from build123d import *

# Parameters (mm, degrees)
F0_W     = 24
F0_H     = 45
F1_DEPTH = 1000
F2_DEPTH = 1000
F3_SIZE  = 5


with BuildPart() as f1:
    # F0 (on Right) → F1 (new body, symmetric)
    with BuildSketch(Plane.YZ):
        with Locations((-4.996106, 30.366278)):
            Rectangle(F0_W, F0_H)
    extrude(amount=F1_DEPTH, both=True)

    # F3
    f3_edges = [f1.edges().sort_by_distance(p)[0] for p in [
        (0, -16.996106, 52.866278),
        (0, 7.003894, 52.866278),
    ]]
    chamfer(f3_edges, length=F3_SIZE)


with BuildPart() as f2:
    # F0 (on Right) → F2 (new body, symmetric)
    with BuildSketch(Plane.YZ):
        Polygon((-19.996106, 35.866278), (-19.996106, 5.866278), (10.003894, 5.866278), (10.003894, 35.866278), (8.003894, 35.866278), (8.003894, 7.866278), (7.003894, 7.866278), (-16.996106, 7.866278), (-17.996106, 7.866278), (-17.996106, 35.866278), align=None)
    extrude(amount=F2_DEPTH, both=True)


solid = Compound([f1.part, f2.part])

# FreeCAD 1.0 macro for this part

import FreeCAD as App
import Part
import Sketcher

V = App.Vector


def edges_at(feature, points):
    """Names of the edges that pass closest to the given points."""
    edges = feature.Shape.Edges
    near = lambda p: min(range(len(edges)), key=lambda i: edges[i].distToShape(Part.Vertex(*p))[0])
    return sorted({f"Edge{near(p) + 1}" for p in points})

doc = App.newDocument("Part")
body = doc.addObject("PartDesign::Body", "Body")

sketch1 = body.newObject("Sketcher::SketchObject", "Sketch")
sketch1.AttachmentSupport = (doc.getObject("YZ_Plane"), [""])
sketch1.MapMode = "FlatFace"
sketch1.addGeometry(Part.LineSegment(V(-16.996106, 52.866278, 0), V(-16.996106, 7.866278, 0)), False)
sketch1.addGeometry(Part.LineSegment(V(-16.996106, 7.866278, 0), V(7.003894, 7.866278, 0)), False)
sketch1.addGeometry(Part.LineSegment(V(7.003894, 7.866278, 0), V(7.003894, 52.866278, 0)), False)
sketch1.addGeometry(Part.LineSegment(V(7.003894, 52.866278, 0), V(-16.996106, 52.866278, 0)), False)
sketch1.addConstraint(Sketcher.Constraint("Coincident", 0, 2, 1, 1))
sketch1.addConstraint(Sketcher.Constraint("Coincident", 1, 2, 2, 1))
sketch1.addConstraint(Sketcher.Constraint("Coincident", 2, 2, 3, 1))
sketch1.addConstraint(Sketcher.Constraint("Coincident", 3, 2, 0, 1))
sketch1.addConstraint(Sketcher.Constraint("Vertical", 0))
sketch1.addConstraint(Sketcher.Constraint("Horizontal", 1))
sketch1.addConstraint(Sketcher.Constraint("Vertical", 2))
sketch1.addConstraint(Sketcher.Constraint("Horizontal", 3))
sketch1.addConstraint(Sketcher.Constraint("DistanceX", 1, 1, 1, 2, 24.0))
sketch1.addConstraint(Sketcher.Constraint("DistanceY", 0, 2, 0, 1, 45.0))
sketch1.addConstraint(Sketcher.Constraint("DistanceY", -1, 1, 0, 2, 7.866278))
sketch1.addConstraint(Sketcher.Constraint("DistanceX", 0, 2, -1, 1, 16.996106))
pad1 = body.newObject("PartDesign::Pad", "Pad")
pad1.Profile = sketch1
pad1.Length = 2000
pad1.Midplane = True
doc.recompute()

chamfer = body.newObject("PartDesign::Chamfer", "Chamfer")
chamfer.Base = (pad1, edges_at(pad1, [(0, -16.996, 52.866), (0, 7.004, 52.866)]))
chamfer.Size = 5
body2 = doc.addObject("PartDesign::Body", "Body001")

sketch2 = body2.newObject("Sketcher::SketchObject", "Sketch001")
sketch2.AttachmentSupport = (doc.getObject("YZ_Plane001"), [""])
sketch2.MapMode = "FlatFace"
sketch2.addGeometry(Part.LineSegment(V(-19.996106, 35.866278, 0), V(-19.996106, 5.866278, 0)), False)
sketch2.addGeometry(Part.LineSegment(V(-19.996106, 5.866278, 0), V(10.003894, 5.866278, 0)), False)
sketch2.addGeometry(Part.LineSegment(V(10.003894, 5.866278, 0), V(10.003894, 35.866278, 0)), False)
sketch2.addGeometry(Part.LineSegment(V(10.003894, 35.866278, 0), V(8.003894, 35.866278, 0)), False)
sketch2.addGeometry(Part.LineSegment(V(8.003894, 35.866278, 0), V(8.003894, 7.866278, 0)), False)
sketch2.addGeometry(Part.LineSegment(V(8.003894, 7.866278, 0), V(-17.996106, 7.866278, 0)), False)
sketch2.addGeometry(Part.LineSegment(V(-17.996106, 7.866278, 0), V(-17.996106, 35.866278, 0)), False)
sketch2.addGeometry(Part.LineSegment(V(-17.996106, 35.866278, 0), V(-19.996106, 35.866278, 0)), False)
sketch2.addConstraint(Sketcher.Constraint("Coincident", 0, 2, 1, 1))
sketch2.addConstraint(Sketcher.Constraint("Coincident", 1, 2, 2, 1))
sketch2.addConstraint(Sketcher.Constraint("Coincident", 2, 2, 3, 1))
sketch2.addConstraint(Sketcher.Constraint("Coincident", 3, 2, 4, 1))
sketch2.addConstraint(Sketcher.Constraint("Coincident", 4, 2, 5, 1))
sketch2.addConstraint(Sketcher.Constraint("Coincident", 5, 2, 6, 1))
sketch2.addConstraint(Sketcher.Constraint("Coincident", 6, 2, 7, 1))
sketch2.addConstraint(Sketcher.Constraint("Coincident", 7, 2, 0, 1))
sketch2.addConstraint(Sketcher.Constraint("Vertical", 0))
sketch2.addConstraint(Sketcher.Constraint("Horizontal", 1))
sketch2.addConstraint(Sketcher.Constraint("Vertical", 2))
sketch2.addConstraint(Sketcher.Constraint("Horizontal", 3))
sketch2.addConstraint(Sketcher.Constraint("Vertical", 4))
sketch2.addConstraint(Sketcher.Constraint("Horizontal", 5))
sketch2.addConstraint(Sketcher.Constraint("Vertical", 6))
sketch2.addConstraint(Sketcher.Constraint("Horizontal", 7))
sketch2.addConstraint(Sketcher.Constraint("Horizontal", 3, 2, 6, 2))
sketch2.addConstraint(Sketcher.Constraint("Equal", 3, 7))
sketch2.addConstraint(Sketcher.Constraint("Equal", 1, 0))
sketch2.addConstraint(Sketcher.Constraint("DistanceX", 1, 1, 1, 2, 30.0))
sketch2.addConstraint(Sketcher.Constraint("DistanceX", 3, 2, 3, 1, 2.0))
sketch2.addConstraint(Sketcher.Constraint("DistanceY", 4, 2, 4, 1, 28.0))
sketch2.addConstraint(Sketcher.Constraint("DistanceY", -1, 1, 0, 2, 5.866278))
sketch2.addConstraint(Sketcher.Constraint("DistanceX", 0, 2, -1, 1, 19.996106))
pad2 = body2.newObject("PartDesign::Pad", "Pad001")
pad2.Profile = sketch2
pad2.Length = 2000
pad2.Midplane = True

doc.recompute()
